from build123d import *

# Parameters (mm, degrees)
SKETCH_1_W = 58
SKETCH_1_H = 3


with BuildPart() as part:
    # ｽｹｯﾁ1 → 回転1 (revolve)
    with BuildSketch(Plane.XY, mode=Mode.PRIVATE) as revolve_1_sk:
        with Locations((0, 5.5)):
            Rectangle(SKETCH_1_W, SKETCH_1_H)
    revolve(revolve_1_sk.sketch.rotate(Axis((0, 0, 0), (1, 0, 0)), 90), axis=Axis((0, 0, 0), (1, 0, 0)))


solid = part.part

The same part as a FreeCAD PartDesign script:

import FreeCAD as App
import Part
import Sketcher

doc = App.newDocument("Part")
body = doc.addObject("PartDesign::Body", "Body")

# Sketch on XY plane
sketch1 = body.newObject("Sketcher::SketchObject", "Sketch")
sketch1.AttachmentSupport = (doc.getObject("XY_Plane"), [""])
sketch1.MapMode = "FlatFace"
sketch1.addGeometry([
    Part.LineSegment(App.Vector(-29, 7, 0), App.Vector(-29, 4, 0)),
    Part.LineSegment(App.Vector(-29, 4, 0), App.Vector(29, 4, 0)),
    Part.LineSegment(App.Vector(29, 4, 0), App.Vector(29, 7, 0)),
    Part.LineSegment(App.Vector(29, 7, 0), App.Vector(-29, 7, 0)),
], False)
sketch1.addConstraint([
    Sketcher.Constraint("Coincident", 0, 2, 1, 1),
    Sketcher.Constraint("Coincident", 1, 2, 2, 1),
    Sketcher.Constraint("Coincident", 2, 2, 3, 1),
    Sketcher.Constraint("Coincident", 3, 2, 0, 1),
    Sketcher.Constraint("Vertical", 0),
    Sketcher.Constraint("Horizontal", 1),
    Sketcher.Constraint("Vertical", 2),
    Sketcher.Constraint("Horizontal", 3),
    Sketcher.Constraint("DistanceX", 1, 1, 1, 2, 58.0),
    Sketcher.Constraint("DistanceY", 0, 2, 0, 1, 3.0),
    Sketcher.Constraint("DistanceX", 0, 2, -1, 1, 29.0),
    Sketcher.Constraint("DistanceY", -1, 1, 0, 2, 4.0),
])
revolution = body.newObject("PartDesign::Revolution", "Revolution")
revolution.Profile = sketch1
revolution.ReferenceAxis = (sketch1, ["H_Axis"])
revolution.Angle = 360

doc.recompute()
